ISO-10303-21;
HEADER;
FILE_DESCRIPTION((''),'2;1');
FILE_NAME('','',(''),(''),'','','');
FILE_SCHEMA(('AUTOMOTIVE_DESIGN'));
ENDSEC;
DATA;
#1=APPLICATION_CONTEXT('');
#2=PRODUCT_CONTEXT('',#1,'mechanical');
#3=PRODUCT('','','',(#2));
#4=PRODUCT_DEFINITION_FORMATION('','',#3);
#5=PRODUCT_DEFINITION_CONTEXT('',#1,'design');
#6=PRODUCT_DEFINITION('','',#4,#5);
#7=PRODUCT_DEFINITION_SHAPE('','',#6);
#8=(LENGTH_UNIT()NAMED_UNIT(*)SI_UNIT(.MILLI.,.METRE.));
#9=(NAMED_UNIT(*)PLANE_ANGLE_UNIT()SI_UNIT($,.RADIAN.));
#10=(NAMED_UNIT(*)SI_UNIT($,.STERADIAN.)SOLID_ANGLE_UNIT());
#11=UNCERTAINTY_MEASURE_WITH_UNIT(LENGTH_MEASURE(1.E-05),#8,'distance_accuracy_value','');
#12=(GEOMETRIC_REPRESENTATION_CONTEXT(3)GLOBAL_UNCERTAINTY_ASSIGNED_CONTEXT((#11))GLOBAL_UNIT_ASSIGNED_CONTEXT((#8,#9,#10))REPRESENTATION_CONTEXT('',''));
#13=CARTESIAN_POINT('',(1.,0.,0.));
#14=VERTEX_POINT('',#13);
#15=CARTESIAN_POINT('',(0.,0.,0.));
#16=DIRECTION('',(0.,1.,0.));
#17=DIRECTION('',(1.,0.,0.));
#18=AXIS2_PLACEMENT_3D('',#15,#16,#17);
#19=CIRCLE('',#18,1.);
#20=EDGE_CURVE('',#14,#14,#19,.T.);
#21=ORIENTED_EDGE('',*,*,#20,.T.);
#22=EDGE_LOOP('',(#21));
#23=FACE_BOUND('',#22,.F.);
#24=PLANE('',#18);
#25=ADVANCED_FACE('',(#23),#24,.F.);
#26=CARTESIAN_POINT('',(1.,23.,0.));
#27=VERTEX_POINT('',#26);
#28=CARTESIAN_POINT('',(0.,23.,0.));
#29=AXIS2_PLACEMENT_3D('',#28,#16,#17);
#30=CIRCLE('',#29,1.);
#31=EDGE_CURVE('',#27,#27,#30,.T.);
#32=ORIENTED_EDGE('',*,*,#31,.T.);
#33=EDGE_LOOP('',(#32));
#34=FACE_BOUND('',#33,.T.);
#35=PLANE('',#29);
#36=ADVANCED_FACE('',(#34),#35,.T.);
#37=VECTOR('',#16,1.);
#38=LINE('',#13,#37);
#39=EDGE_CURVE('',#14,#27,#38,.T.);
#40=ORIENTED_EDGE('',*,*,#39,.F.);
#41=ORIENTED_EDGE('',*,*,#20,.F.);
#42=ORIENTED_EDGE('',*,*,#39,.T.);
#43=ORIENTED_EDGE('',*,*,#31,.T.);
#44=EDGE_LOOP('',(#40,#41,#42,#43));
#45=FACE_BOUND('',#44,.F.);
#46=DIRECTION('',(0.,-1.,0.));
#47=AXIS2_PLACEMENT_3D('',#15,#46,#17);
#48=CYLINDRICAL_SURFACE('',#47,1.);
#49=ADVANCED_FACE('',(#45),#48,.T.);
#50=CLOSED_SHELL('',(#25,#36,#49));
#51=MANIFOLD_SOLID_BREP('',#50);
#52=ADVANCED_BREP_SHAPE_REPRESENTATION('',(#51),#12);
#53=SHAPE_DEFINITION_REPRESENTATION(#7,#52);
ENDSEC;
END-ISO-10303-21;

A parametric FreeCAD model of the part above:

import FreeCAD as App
import Part
import Sketcher
Q = App.Units.Quantity

doc = App.newDocument("Part")
params = doc.addObject("Spreadsheet::Sheet", "Params")
for row, (alias, value) in enumerate([
    ("sketch1_diameter", "2 mm"),
    ("pad1_length", "23 mm"),
], start=1):
    params.set(f"A{row}", alias)
    params.set(f"B{row}", "=" + value)
    params.setAlias(f"B{row}", alias)

body = doc.addObject("PartDesign::Body", "Body")

# Sketch on XZ plane
sketch1 = doc.addObject("Sketcher::SketchObject", "Sketch")
body.addObject(sketch1)
sketch1.AttachmentSupport = (doc.XZ_Plane, [""])
sketch1.MapMode = "FlatFace"
sketch1.addGeometry(Part.Circle(App.Vector(0, 0, 0), App.Vector(0, 0, 1), 1), False)
sketch1.addConstraint([
    Sketcher.Constraint("Coincident", 0, 3, -1, 1),
    Sketcher.Constraint("Diameter", 0, Q("2 mm")),
])
sketch1.setExpression("Constraints[1]", "Params.sketch1_diameter")
pad1 = doc.addObject("PartDesign::Pad", "Pad")
body.addObject(pad1)
pad1.Profile = sketch1
pad1.setExpression("Length", "Params.pad1_length")
pad1.Reversed = True

doc.recompute()
